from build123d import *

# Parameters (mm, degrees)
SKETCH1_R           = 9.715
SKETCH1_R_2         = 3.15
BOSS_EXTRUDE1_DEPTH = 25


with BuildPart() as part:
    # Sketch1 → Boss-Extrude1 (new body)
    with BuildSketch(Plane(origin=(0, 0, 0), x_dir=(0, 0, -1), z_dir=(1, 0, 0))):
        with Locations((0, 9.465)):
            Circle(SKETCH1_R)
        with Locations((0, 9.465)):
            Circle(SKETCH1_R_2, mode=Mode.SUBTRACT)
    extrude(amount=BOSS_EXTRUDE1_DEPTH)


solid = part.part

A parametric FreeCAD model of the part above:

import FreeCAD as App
import Part
import Sketcher

V = App.Vector

doc = App.newDocument("Part")
body = doc.addObject("PartDesign::Body", "Body")

# Sketch on YZ plane
sketch1 = body.newObject("Sketcher::SketchObject", "Sketch")
sketch1.AttachmentSupport = (doc.getObject("YZ_Plane"), [""])
sketch1.MapMode = "FlatFace"
sketch1.addGeometry([
    Part.Circle(V(9.5, 0, 0), V(0, 0, 1), 9.7),
    Part.Circle(V(9.5, 0, 0), V(0, 0, 1), 3.1),
], False)
sketch1.addConstraint([
    Sketcher.Constraint("Coincident", 1, 3, 0, 3),
    Sketcher.Constraint("PointOnObject", 0, 3, -1),
    Sketcher.Constraint("Diameter", 1, 6.3),
    Sketcher.Constraint("Diameter", 0, 19.43),
    Sketcher.Constraint("DistanceX", -1, 1, 0, 3, 9.465),
])
pad1 = body.newObject("PartDesign::Pad", "Pad")
pad1.Profile = sketch1
pad1.Length = 25

doc.recompute()
